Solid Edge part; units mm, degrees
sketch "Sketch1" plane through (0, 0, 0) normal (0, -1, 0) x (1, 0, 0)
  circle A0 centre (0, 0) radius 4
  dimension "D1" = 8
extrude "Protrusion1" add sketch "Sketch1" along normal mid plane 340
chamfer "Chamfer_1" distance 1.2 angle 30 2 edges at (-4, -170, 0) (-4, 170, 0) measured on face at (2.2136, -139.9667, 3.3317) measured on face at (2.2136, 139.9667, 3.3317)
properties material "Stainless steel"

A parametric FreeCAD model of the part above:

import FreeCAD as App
import Part
import Sketcher

V = App.Vector


def edges_at(feature, points):
    """Names of the edges that pass closest to the given points."""
    edges = feature.Shape.Edges
    near = lambda p: min(range(len(edges)), key=lambda i: edges[i].distToShape(Part.Vertex(*p))[0])
    return sorted({f"Edge{near(p) + 1}" for p in points})

doc = App.newDocument("Part")
body = doc.addObject("PartDesign::Body", "Body")

# Sketch on XZ plane
sketch1 = doc.addObject("Sketcher::SketchObject", "Sketch")
body.addObject(sketch1)
sketch1.AttachmentSupport = (doc.XZ_Plane, [""])
sketch1.MapMode = "FlatFace"
sketch1.addGeometry(Part.Circle(V(0, 0, 0), V(0, 0, 1), 4), False)
sketch1.addConstraint(Sketcher.Constraint("Coincident", 0, 3, -1, 1))
sketch1.addConstraint(Sketcher.Constraint("Diameter", 0, 8.0))
pad1 = doc.addObject("PartDesign::Pad", "Pad")
body.addObject(pad1)
pad1.Profile = sketch1
pad1.Length = 340
pad1.Midplane = True
doc.recompute()

chamfer = doc.addObject("PartDesign::Chamfer", "Chamfer")
body.addObject(chamfer)
chamfer.Base = (pad1, edges_at(pad1, [(-4, -170, 0), (-4, 170, 0)]))
chamfer.ChamferType = "Distance and Angle"
chamfer.Size = 1.2
chamfer.Angle = 30

doc.recompute()
